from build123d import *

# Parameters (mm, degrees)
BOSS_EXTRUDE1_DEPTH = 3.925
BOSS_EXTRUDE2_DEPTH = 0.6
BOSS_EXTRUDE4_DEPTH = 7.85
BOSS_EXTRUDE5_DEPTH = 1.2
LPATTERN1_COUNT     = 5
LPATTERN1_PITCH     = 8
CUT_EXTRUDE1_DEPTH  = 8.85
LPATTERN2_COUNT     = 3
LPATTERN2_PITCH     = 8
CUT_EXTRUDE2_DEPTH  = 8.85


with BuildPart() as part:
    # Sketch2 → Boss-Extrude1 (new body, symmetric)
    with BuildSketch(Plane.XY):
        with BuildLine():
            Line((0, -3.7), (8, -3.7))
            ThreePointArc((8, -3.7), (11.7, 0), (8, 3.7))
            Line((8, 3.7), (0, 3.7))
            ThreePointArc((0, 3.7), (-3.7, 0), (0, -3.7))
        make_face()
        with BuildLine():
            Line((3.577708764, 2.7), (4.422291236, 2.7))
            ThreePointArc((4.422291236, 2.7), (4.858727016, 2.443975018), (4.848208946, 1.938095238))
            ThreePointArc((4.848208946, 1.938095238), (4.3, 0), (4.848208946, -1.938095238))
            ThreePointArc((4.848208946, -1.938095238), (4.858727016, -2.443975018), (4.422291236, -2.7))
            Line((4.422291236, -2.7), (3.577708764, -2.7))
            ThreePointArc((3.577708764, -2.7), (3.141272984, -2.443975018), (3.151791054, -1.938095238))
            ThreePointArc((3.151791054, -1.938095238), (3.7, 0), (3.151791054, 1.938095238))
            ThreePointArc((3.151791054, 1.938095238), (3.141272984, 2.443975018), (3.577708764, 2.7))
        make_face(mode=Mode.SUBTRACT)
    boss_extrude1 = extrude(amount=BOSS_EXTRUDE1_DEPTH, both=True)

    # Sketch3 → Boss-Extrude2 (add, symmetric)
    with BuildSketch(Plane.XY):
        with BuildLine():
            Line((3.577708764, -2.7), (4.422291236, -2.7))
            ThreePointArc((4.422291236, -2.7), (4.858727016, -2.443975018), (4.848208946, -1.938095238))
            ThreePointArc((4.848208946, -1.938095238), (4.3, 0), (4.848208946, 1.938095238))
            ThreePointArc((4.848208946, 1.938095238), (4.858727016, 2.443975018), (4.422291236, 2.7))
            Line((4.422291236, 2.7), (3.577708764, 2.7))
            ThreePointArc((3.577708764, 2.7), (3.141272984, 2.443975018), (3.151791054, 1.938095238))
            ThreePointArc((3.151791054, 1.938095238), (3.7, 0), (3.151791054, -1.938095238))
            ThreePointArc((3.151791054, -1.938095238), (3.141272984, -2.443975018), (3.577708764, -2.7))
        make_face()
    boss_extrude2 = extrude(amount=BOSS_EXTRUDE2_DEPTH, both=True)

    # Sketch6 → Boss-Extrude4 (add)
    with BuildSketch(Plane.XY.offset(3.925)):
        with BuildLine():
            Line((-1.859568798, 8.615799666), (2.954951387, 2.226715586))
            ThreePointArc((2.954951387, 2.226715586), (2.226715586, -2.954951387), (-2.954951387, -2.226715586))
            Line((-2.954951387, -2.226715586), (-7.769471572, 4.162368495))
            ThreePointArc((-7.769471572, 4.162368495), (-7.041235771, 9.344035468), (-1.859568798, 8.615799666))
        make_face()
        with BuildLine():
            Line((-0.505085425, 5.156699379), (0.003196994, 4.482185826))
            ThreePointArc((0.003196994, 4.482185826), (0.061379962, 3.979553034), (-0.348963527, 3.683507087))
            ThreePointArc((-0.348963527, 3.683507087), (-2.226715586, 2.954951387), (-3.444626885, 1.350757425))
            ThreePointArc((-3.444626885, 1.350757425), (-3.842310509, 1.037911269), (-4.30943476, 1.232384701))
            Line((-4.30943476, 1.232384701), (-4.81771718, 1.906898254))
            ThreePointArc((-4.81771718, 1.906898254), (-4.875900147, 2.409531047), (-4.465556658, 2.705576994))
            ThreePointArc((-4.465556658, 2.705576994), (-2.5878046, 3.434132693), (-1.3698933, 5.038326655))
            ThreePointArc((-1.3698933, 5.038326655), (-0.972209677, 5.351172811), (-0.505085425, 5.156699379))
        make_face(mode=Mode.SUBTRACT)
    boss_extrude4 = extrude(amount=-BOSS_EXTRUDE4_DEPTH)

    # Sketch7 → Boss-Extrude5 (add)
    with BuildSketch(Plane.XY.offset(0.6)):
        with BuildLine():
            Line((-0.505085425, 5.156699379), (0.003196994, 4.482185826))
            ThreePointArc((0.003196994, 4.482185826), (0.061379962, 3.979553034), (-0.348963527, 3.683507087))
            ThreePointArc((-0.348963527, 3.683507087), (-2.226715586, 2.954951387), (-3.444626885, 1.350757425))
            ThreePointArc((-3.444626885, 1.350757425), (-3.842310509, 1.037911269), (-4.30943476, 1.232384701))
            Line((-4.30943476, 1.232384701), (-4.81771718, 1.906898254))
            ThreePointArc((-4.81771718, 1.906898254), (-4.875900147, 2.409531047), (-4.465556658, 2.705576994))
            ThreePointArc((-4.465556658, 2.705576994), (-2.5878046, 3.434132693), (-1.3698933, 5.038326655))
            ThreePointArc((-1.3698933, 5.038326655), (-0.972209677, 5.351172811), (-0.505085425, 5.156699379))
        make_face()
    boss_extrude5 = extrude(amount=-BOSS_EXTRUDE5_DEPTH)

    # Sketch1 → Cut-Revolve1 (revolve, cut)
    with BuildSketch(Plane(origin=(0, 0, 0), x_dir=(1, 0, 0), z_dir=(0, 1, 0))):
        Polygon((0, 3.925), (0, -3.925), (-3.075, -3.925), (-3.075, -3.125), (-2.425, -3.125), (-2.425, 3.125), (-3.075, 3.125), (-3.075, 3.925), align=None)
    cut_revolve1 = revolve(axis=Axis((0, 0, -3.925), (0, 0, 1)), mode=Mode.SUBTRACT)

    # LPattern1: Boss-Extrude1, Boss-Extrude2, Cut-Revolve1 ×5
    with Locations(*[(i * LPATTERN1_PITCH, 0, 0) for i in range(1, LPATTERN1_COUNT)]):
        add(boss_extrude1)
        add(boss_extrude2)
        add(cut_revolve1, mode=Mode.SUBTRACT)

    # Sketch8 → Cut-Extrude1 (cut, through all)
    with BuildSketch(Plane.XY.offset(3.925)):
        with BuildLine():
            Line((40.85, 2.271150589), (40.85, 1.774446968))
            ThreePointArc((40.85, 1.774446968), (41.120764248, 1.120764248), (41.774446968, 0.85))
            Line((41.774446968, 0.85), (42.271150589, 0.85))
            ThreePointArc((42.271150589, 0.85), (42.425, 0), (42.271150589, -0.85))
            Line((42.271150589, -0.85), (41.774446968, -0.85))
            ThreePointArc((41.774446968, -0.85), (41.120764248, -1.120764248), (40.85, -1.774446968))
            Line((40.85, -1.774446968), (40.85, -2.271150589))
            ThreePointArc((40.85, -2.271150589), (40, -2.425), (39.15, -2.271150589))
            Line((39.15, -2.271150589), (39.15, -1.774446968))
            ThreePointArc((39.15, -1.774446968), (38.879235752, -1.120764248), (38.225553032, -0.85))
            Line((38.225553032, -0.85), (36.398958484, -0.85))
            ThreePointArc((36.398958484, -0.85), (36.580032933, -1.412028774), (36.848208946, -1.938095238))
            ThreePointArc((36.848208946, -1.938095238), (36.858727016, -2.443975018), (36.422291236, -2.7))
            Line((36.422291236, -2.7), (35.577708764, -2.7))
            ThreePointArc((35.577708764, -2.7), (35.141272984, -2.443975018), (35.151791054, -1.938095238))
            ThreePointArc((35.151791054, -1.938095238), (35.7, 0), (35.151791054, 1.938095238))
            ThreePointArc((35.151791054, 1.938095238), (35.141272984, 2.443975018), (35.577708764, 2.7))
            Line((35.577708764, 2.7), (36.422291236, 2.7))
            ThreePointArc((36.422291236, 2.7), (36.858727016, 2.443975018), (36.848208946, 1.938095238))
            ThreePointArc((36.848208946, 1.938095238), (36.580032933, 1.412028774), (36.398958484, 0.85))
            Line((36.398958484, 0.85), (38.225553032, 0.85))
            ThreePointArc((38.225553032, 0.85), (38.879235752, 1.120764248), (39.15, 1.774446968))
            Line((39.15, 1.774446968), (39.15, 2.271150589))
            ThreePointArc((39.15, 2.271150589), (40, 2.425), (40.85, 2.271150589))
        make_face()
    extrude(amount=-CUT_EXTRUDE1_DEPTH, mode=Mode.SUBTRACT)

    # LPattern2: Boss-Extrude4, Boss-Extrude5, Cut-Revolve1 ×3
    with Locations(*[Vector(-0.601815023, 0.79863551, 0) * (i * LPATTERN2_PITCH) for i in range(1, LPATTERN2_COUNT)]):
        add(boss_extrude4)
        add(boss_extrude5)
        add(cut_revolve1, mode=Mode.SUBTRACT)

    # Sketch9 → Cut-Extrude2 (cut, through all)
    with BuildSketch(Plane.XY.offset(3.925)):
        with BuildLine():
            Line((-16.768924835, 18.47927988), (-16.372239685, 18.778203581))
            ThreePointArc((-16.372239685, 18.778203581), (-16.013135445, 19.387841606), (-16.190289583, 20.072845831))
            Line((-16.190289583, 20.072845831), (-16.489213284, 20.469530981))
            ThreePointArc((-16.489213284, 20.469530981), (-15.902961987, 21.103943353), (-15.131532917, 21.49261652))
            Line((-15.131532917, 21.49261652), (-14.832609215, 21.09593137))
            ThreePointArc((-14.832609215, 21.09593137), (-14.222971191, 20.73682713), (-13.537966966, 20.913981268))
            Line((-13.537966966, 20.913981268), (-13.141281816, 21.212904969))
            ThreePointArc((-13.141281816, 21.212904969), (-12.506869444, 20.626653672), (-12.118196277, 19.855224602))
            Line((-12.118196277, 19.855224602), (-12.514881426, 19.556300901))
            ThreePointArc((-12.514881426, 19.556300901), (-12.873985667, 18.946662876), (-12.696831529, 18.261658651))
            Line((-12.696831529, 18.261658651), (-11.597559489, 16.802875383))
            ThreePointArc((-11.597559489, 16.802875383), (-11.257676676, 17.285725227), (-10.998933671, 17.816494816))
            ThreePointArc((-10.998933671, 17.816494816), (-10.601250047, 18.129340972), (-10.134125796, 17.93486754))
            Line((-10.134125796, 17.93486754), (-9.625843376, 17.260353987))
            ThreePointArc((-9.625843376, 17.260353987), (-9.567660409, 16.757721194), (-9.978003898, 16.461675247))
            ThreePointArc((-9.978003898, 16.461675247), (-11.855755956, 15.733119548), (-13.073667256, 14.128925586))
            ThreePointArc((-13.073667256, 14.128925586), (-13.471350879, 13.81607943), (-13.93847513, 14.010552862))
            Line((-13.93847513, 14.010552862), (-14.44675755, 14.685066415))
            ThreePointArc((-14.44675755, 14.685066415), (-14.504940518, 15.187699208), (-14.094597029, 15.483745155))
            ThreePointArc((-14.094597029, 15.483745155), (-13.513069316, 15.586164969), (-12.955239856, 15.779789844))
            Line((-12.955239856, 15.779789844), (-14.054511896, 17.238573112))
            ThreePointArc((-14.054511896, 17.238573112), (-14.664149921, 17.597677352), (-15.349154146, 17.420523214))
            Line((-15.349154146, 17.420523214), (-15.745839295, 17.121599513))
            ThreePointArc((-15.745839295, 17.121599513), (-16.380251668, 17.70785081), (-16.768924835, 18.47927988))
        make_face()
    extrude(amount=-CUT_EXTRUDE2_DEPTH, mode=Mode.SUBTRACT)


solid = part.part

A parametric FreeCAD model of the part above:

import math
import FreeCAD as App
import Part
import Sketcher
from FreeCAD import Vector
Q = App.Units.Quantity


def add_polygon(sketch, points):
    """Adds a closed chain of lines whose ends are joined by coincident constraints."""
    first, n = sketch.GeometryCount, len(points)
    for a, b in zip(points, points[1:] + points[:1]):
        sketch.addGeometry(Part.LineSegment(App.Vector(*a, 0), App.Vector(*b, 0)), False)
    for i in range(n):
        sketch.addConstraint(Sketcher.Constraint("Coincident", first + i, 2, first + (i + 1) % n, 1))

doc = App.newDocument("Part")
body = doc.addObject("PartDesign::Body", "Body")

sketch1 = body.newObject("Sketcher::SketchObject", "Sketch")
sketch1.AttachmentSupport = (doc.getObject("XY_Plane"), [""])
sketch1.MapMode = "FlatFace"
sketch1.addGeometry(Part.LineSegment(Vector(0, -3.7, 0), Vector(8, -3.7, 0)), False)
sketch1.addGeometry(Part.ArcOfCircle(Part.Circle(Vector(8, 0, 0), Vector(0, 0, 1), 3.7), math.radians(-90), math.radians(90)), False)
sketch1.addGeometry(Part.LineSegment(Vector(8, 3.7, 0), Vector(0, 3.7, 0)), False)
sketch1.addGeometry(Part.ArcOfCircle(Part.Circle(Vector(0, 0, 0), Vector(0, 0, 1), 3.7), math.radians(90), math.radians(270)), False)
sketch1.addGeometry(Part.ArcOfCircle(Part.Circle(Vector(3.577709, 2.2, 0), Vector(0, 0, 1), 0.5), math.radians(90), math.radians(211.588135)), False)
sketch1.addGeometry(Part.LineSegment(Vector(3.577709, 2.7, 0), Vector(4.422291, 2.7, 0)), False)
sketch1.addGeometry(Part.ArcOfCircle(Part.Circle(Vector(4.422291, 2.2, 0), Vector(0, 0, 1), 0.5), math.radians(-31.588135), math.radians(90)), False)
sketch1.addGeometry(Part.ArcOfCircle(Part.Circle(Vector(8, 0, 0), Vector(0, 0, 1), 3.7), math.radians(148.411864), math.radians(211.588136)), False)
sketch1.addGeometry(Part.ArcOfCircle(Part.Circle(Vector(4.422291, -2.2, 0), Vector(0, 0, 1), 0.5), math.radians(-90), math.radians(31.588135)), False)
sketch1.addGeometry(Part.LineSegment(Vector(4.422291, -2.7, 0), Vector(3.577709, -2.7, 0)), False)
sketch1.addGeometry(Part.ArcOfCircle(Part.Circle(Vector(3.577709, -2.2, 0), Vector(0, 0, 1), 0.5), math.radians(148.411865), math.radians(270)), False)
sketch1.addGeometry(Part.ArcOfCircle(Part.Circle(Vector(0, 0, 0), Vector(0, 0, 1), 3.7), math.radians(-31.588136), math.radians(31.588136)), False)
sketch1.addConstraint(Sketcher.Constraint("Tangent", 0, 2, 1, 1))
sketch1.addConstraint(Sketcher.Constraint("Tangent", 1, 2, 2, 1))
sketch1.addConstraint(Sketcher.Constraint("Tangent", 2, 2, 3, 1))
sketch1.addConstraint(Sketcher.Constraint("Tangent", 3, 2, 0, 1))
sketch1.addConstraint(Sketcher.Constraint("Tangent", 4, 1, 5, 1))
sketch1.addConstraint(Sketcher.Constraint("Tangent", 5, 2, 6, 2))
sketch1.addConstraint(Sketcher.Constraint("Tangent", 6, 1, 7, 1))
sketch1.addConstraint(Sketcher.Constraint("Tangent", 7, 2, 8, 2))
sketch1.addConstraint(Sketcher.Constraint("Tangent", 8, 1, 9, 1))
sketch1.addConstraint(Sketcher.Constraint("Tangent", 9, 2, 10, 2))
sketch1.addConstraint(Sketcher.Constraint("Tangent", 10, 1, 11, 1))
sketch1.addConstraint(Sketcher.Constraint("Tangent", 11, 2, 4, 2))
sketch1.addConstraint(Sketcher.Constraint("Horizontal", 0))
sketch1.addConstraint(Sketcher.Constraint("Horizontal", 2))
sketch1.addConstraint(Sketcher.Constraint("Horizontal", 5))
sketch1.addConstraint(Sketcher.Constraint("Horizontal", 9))
sketch1.addConstraint(Sketcher.Constraint("Coincident", 3, 3, -1, 1))
sketch1.addConstraint(Sketcher.Constraint("Coincident", 11, 3, -1, 1))
sketch1.addConstraint(Sketcher.Constraint("Coincident", 7, 3, 1, 3))
sketch1.addConstraint(Sketcher.Constraint("Equal", 4, 6))
sketch1.addConstraint(Sketcher.Constraint("Equal", 3, 7))
sketch1.addConstraint(Sketcher.Constraint("Equal", 6, 8))
sketch1.addConstraint(Sketcher.Constraint("Equal", 8, 10))
sketch1.addConstraint(Sketcher.Constraint("Equal", 7, 11))
sketch1.addConstraint(Sketcher.Constraint("Vertical", 6, 3, 8, 3))
sketch1.addConstraint(Sketcher.Constraint("Radius", 1, Q("3.7 mm")))
sketch1.addConstraint(Sketcher.Constraint("Radius", 4, Q("0.5 mm")))
sketch1.addConstraint(Sketcher.Constraint("DistanceX", 0, 1, 0, 2, Q("8 mm")))
sketch1.addConstraint(Sketcher.Constraint("DistanceY", 4, 1, 2, 2, Q("1 mm")))
pad1 = body.newObject("PartDesign::Pad", "Pad")
pad1.Profile = sketch1
pad1.Length = 7.85
pad1.Midplane = True

sketch2 = body.newObject("Sketcher::SketchObject", "Sketch001")
sketch2.AttachmentSupport = (doc.getObject("XY_Plane"), [""])
sketch2.MapMode = "FlatFace"
sketch2.addGeometry(Part.LineSegment(Vector(3.577709, -2.7, 0), Vector(4.422291, -2.7, 0)), False)
sketch2.addGeometry(Part.ArcOfCircle(Part.Circle(Vector(4.422291, -2.2, 0), Vector(0, 0, 1), 0.5), math.radians(-90), math.radians(31.588135)), False)
sketch2.addGeometry(Part.ArcOfCircle(Part.Circle(Vector(8, 0, 0), Vector(0, 0, 1), 3.7), math.radians(148.411864), math.radians(211.588136)), False)
sketch2.addGeometry(Part.ArcOfCircle(Part.Circle(Vector(4.422291, 2.2, 0), Vector(0, 0, 1), 0.5), math.radians(-31.588135), math.radians(90)), False)
sketch2.addGeometry(Part.LineSegment(Vector(4.422291, 2.7, 0), Vector(3.577709, 2.7, 0)), False)
sketch2.addGeometry(Part.ArcOfCircle(Part.Circle(Vector(3.577709, 2.2, 0), Vector(0, 0, 1), 0.5), math.radians(90), math.radians(211.588135)), False)
sketch2.addGeometry(Part.ArcOfCircle(Part.Circle(Vector(0, 0, 0), Vector(0, 0, 1), 3.7), math.radians(-31.588136), math.radians(31.588136)), False)
sketch2.addGeometry(Part.ArcOfCircle(Part.Circle(Vector(3.577709, -2.2, 0), Vector(0, 0, 1), 0.5), math.radians(148.411865), math.radians(270)), False)
sketch2.addConstraint(Sketcher.Constraint("Tangent", 0, 2, 1, 1))
sketch2.addConstraint(Sketcher.Constraint("Tangent", 1, 2, 2, 2))
sketch2.addConstraint(Sketcher.Constraint("Tangent", 2, 1, 3, 1))
sketch2.addConstraint(Sketcher.Constraint("Tangent", 3, 2, 4, 1))
sketch2.addConstraint(Sketcher.Constraint("Tangent", 4, 2, 5, 1))
sketch2.addConstraint(Sketcher.Constraint("Tangent", 5, 2, 6, 2))
sketch2.addConstraint(Sketcher.Constraint("Tangent", 6, 1, 7, 1))
sketch2.addConstraint(Sketcher.Constraint("Tangent", 7, 2, 0, 1))
sketch2.addConstraint(Sketcher.Constraint("Horizontal", 0))
sketch2.addConstraint(Sketcher.Constraint("Horizontal", 4))
sketch2.addConstraint(Sketcher.Constraint("Coincident", 6, 3, -1, 1))
sketch2.addConstraint(Sketcher.Constraint("Equal", 1, 3))
sketch2.addConstraint(Sketcher.Constraint("Equal", 3, 5))
sketch2.addConstraint(Sketcher.Constraint("Equal", 2, 6))
sketch2.addConstraint(Sketcher.Constraint("Equal", 5, 7))
sketch2.addConstraint(Sketcher.Constraint("Symmetric", 1, 3, 3, 3, -1))
sketch2.addConstraint(Sketcher.Constraint("Radius", 1, Q("0.5 mm")))
sketch2.addConstraint(Sketcher.Constraint("Radius", 2, Q("3.7 mm")))
sketch2.addConstraint(Sketcher.Constraint("DistanceX", -1, 1, 2, 3, Q("8 mm")))
sketch2.addConstraint(Sketcher.Constraint("DistanceY", 1, 3, -1, 1, Q("2.2 mm")))
pad2 = body.newObject("PartDesign::Pad", "Pad001")
pad2.Profile = sketch2
pad2.Length = 1.2
pad2.Midplane = True

sketch3 = body.newObject("Sketcher::SketchObject", "Sketch002")
sketch3.AttachmentSupport = (doc.getObject("XY_Plane"), [""])
sketch3.MapMode = "FlatFace"
sketch3.AttachmentOffset = App.Placement(Vector(0, 0, 3.925), App.Rotation())
sketch3.addGeometry(Part.LineSegment(Vector(2.954951, 2.226716, 0), Vector(-1.859569, 8.6158, 0)), False)
sketch3.addGeometry(Part.ArcOfCircle(Part.Circle(Vector(-4.81452, 6.389084, 0), Vector(0, 0, 1), 3.7), math.radians(37), math.radians(217)), False)
sketch3.addGeometry(Part.LineSegment(Vector(-7.769472, 4.162368, 0), Vector(-2.954951, -2.226716, 0)), False)
sketch3.addGeometry(Part.ArcOfCircle(Part.Circle(Vector(0, 0, 0), Vector(0, 0, 1), 3.7), math.radians(-143), math.radians(37)), False)
sketch3.addGeometry(Part.LineSegment(Vector(-0.505085, 5.156699, 0), Vector(0.003197, 4.482186, 0)), False)
sketch3.addGeometry(Part.ArcOfCircle(Part.Circle(Vector(-0.396121, 4.181278, 0), Vector(0, 0, 1), 0.5), math.radians(-84.588136), math.radians(37)), False)
sketch3.addGeometry(Part.ArcOfCircle(Part.Circle(Vector(0, 0, 0), Vector(0, 0, 1), 3.7), math.radians(95.411865), math.radians(158.588136)), False)
sketch3.addGeometry(Part.ArcOfCircle(Part.Circle(Vector(-3.910117, 1.533292, 0), Vector(0, 0, 1), 0.5), math.radians(-143), math.radians(-21.411865)), False)
sketch3.addGeometry(Part.LineSegment(Vector(-4.309435, 1.232385, 0), Vector(-4.817717, 1.906898, 0)), False)
sketch3.addGeometry(Part.ArcOfCircle(Part.Circle(Vector(-4.418399, 2.207806, 0), Vector(0, 0, 1), 0.5), math.radians(95.411865), math.radians(217)), False)
sketch3.addGeometry(Part.ArcOfCircle(Part.Circle(Vector(-4.81452, 6.389084, 0), Vector(0, 0, 1), 3.7), math.radians(-84.588136), math.radians(-21.411865)), False)
sketch3.addGeometry(Part.ArcOfCircle(Part.Circle(Vector(-0.904403, 4.855792, 0), Vector(0, 0, 1), 0.5), math.radians(37), math.radians(158.588135)), False)
sketch3.addConstraint(Sketcher.Constraint("Tangent", 0, 2, 1, 1))
sketch3.addConstraint(Sketcher.Constraint("Tangent", 1, 2, 2, 1))
sketch3.addConstraint(Sketcher.Constraint("Tangent", 2, 2, 3, 1))
sketch3.addConstraint(Sketcher.Constraint("Tangent", 3, 2, 0, 1))
sketch3.addConstraint(Sketcher.Constraint("Tangent", 4, 2, 5, 2))
sketch3.addConstraint(Sketcher.Constraint("Tangent", 5, 1, 6, 1))
sketch3.addConstraint(Sketcher.Constraint("Tangent", 6, 2, 7, 2))
sketch3.addConstraint(Sketcher.Constraint("Tangent", 7, 1, 8, 1))
sketch3.addConstraint(Sketcher.Constraint("Tangent", 8, 2, 9, 2))
sketch3.addConstraint(Sketcher.Constraint("Tangent", 9, 1, 10, 1))
sketch3.addConstraint(Sketcher.Constraint("Tangent", 10, 2, 11, 2))
sketch3.addConstraint(Sketcher.Constraint("Tangent", 11, 1, 4, 1))
sketch3.addConstraint(Sketcher.Constraint("Coincident", 3, 3, -1, 1))
sketch3.addConstraint(Sketcher.Constraint("Coincident", 6, 3, -1, 1))
sketch3.addConstraint(Sketcher.Constraint("Coincident", 10, 3, 1, 3))
sketch3.addConstraint(Sketcher.Constraint("Equal", 1, 3))
sketch3.addConstraint(Sketcher.Constraint("Equal", 3, 6))
sketch3.addConstraint(Sketcher.Constraint("Equal", 5, 7))
sketch3.addConstraint(Sketcher.Constraint("Equal", 7, 9))
sketch3.addConstraint(Sketcher.Constraint("Equal", 6, 10))
sketch3.addConstraint(Sketcher.Constraint("Equal", 9, 11))
sketch3.addConstraint(Sketcher.Constraint("Parallel", 2, 4))
sketch3.addConstraint(Sketcher.Constraint("Parallel", 4, 8))
sketch3.addConstraint(Sketcher.Constraint("Equal", 4, 8))
sketch3.addConstraint(Sketcher.Constraint("Radius", 1, Q("3.7 mm")))
sketch3.addConstraint(Sketcher.Constraint("Radius", 5, Q("0.5 mm")))
sketch3.addConstraint(Sketcher.Constraint("Angle", 0, Q("127 deg")))
sketch3.addConstraint(Sketcher.Constraint("Distance", 0, Q("8 mm")))
sketch3.addConstraint(Sketcher.Constraint("DistanceX", 9, 3, -1, 1, Q("4.418399 mm")))
pad3 = body.newObject("PartDesign::Pad", "Pad002")
pad3.Profile = sketch3
pad3.Length = 7.85
pad3.Reversed = True

sketch4 = body.newObject("Sketcher::SketchObject", "Sketch003")
sketch4.AttachmentSupport = (doc.getObject("XY_Plane"), [""])
sketch4.MapMode = "FlatFace"
sketch4.AttachmentOffset = App.Placement(Vector(0, 0, 0.6), App.Rotation())
sketch4.addGeometry(Part.LineSegment(Vector(0.003197, 4.482186, 0), Vector(-0.505085, 5.156699, 0)), False)
sketch4.addGeometry(Part.ArcOfCircle(Part.Circle(Vector(-0.904403, 4.855792, 0), Vector(0, 0, 1), 0.5), math.radians(37), math.radians(158.588135)), False)
sketch4.addGeometry(Part.ArcOfCircle(Part.Circle(Vector(-4.81452, 6.389084, 0), Vector(0, 0, 1), 3.7), math.radians(-84.588136), math.radians(-21.411865)), False)
sketch4.addGeometry(Part.ArcOfCircle(Part.Circle(Vector(-4.418399, 2.207806, 0), Vector(0, 0, 1), 0.5), math.radians(95.411865), math.radians(217)), False)
sketch4.addGeometry(Part.LineSegment(Vector(-4.817717, 1.906898, 0), Vector(-4.309435, 1.232385, 0)), False)
sketch4.addGeometry(Part.ArcOfCircle(Part.Circle(Vector(-3.910117, 1.533292, 0), Vector(0, 0, 1), 0.5), math.radians(-143), math.radians(-21.411865)), False)
sketch4.addGeometry(Part.ArcOfCircle(Part.Circle(Vector(0, 0, 0), Vector(0, 0, 1), 3.7), math.radians(95.411865), math.radians(158.588136)), False)
sketch4.addGeometry(Part.ArcOfCircle(Part.Circle(Vector(-0.396121, 4.181278, 0), Vector(0, 0, 1), 0.5), math.radians(-84.588136), math.radians(37)), False)
sketch4.addConstraint(Sketcher.Constraint("Tangent", 0, 2, 1, 1))
sketch4.addConstraint(Sketcher.Constraint("Tangent", 1, 2, 2, 2))
sketch4.addConstraint(Sketcher.Constraint("Tangent", 2, 1, 3, 1))
sketch4.addConstraint(Sketcher.Constraint("Tangent", 3, 2, 4, 1))
sketch4.addConstraint(Sketcher.Constraint("Tangent", 4, 2, 5, 1))
sketch4.addConstraint(Sketcher.Constraint("Tangent", 5, 2, 6, 2))
sketch4.addConstraint(Sketcher.Constraint("Tangent", 6, 1, 7, 1))
sketch4.addConstraint(Sketcher.Constraint("Tangent", 7, 2, 0, 1))
sketch4.addConstraint(Sketcher.Constraint("Coincident", 6, 3, -1, 1))
sketch4.addConstraint(Sketcher.Constraint("Equal", 1, 3))
sketch4.addConstraint(Sketcher.Constraint("Equal", 3, 5))
sketch4.addConstraint(Sketcher.Constraint("Equal", 2, 6))
sketch4.addConstraint(Sketcher.Constraint("Equal", 5, 7))
sketch4.addConstraint(Sketcher.Constraint("Parallel", 0, 4))
sketch4.addConstraint(Sketcher.Constraint("Equal", 0, 4))
sketch4.addConstraint(Sketcher.Constraint("Radius", 1, Q("0.5 mm")))
sketch4.addConstraint(Sketcher.Constraint("Radius", 2, Q("3.7 mm")))
sketch4.addConstraint(Sketcher.Constraint("Angle", 0, Q("127 deg")))
sketch4.addConstraint(Sketcher.Constraint("DistanceX", 3, 3, -1, 1, Q("4.418399 mm")))
sketch4.addConstraint(Sketcher.Constraint("DistanceY", -1, 1, 0, 2, Q("5.156699 mm")))
sketch4.addConstraint(Sketcher.Constraint("DistanceY", -1, 1, 3, 2, Q("1.906898 mm")))
pad4 = body.newObject("PartDesign::Pad", "Pad003")
pad4.Profile = sketch4
pad4.Length = 1.2
pad4.Reversed = True

sketch5 = body.newObject("Sketcher::SketchObject", "Sketch004")
sketch5.AttachmentSupport = (doc.getObject("XZ_Plane"), [""])
sketch5.MapMode = "FlatFace"
add_polygon(sketch5, [(0, 3.925), (0, -3.925), (-3.075, -3.925), (-3.075, -3.125), (-2.425, -3.125), (-2.425, 3.125), (-3.075, 3.125), (-3.075, 3.925)])
sketch5.addConstraint(Sketcher.Constraint("Vertical", 0))
sketch5.addConstraint(Sketcher.Constraint("Horizontal", 1))
sketch5.addConstraint(Sketcher.Constraint("Vertical", 2))
sketch5.addConstraint(Sketcher.Constraint("Horizontal", 3))
sketch5.addConstraint(Sketcher.Constraint("Vertical", 4))
sketch5.addConstraint(Sketcher.Constraint("Horizontal", 5))
sketch5.addConstraint(Sketcher.Constraint("Vertical", 6))
sketch5.addConstraint(Sketcher.Constraint("Horizontal", 7))
sketch5.addConstraint(Sketcher.Constraint("Symmetric", 0, 2, 7, 2, -1, 1))
sketch5.addConstraint(Sketcher.Constraint("Symmetric", 2, 2, 5, 2, -1))
sketch5.addConstraint(Sketcher.Constraint("DistanceY", 2, 1, 2, 2, Q("0.8 mm")))
sketch5.addConstraint(Sketcher.Constraint("DistanceX", 3, 1, 3, 2, Q("0.65 mm")))
sketch5.addConstraint(Sketcher.Constraint("DistanceY", 0, 2, 0, 1, Q("7.85 mm")))
sketch5.addConstraint(Sketcher.Constraint("DistanceX", 1, 2, 1, 1, Q("3.075 mm")))
groove = body.newObject("PartDesign::Groove", "Groove")
groove.Profile = sketch5
groove.ReferenceAxis = (sketch5, ["V_Axis"])
groove.Angle = 360
doc.recompute()

linearpattern = body.newObject("PartDesign::LinearPattern", "LinearPattern")
linearpattern.Originals = [pad1, pad2, groove]
linearpattern.Direction = (doc.getObject("X_Axis"), [""])
linearpattern.Mode = "offset"
linearpattern.Offset = 8
linearpattern.Occurrences = 5
body.Tip = linearpattern

sketch6 = body.newObject("Sketcher::SketchObject", "Sketch005")
sketch6.AttachmentSupport = (doc.getObject("XY_Plane"), [""])
sketch6.MapMode = "FlatFace"
sketch6.AttachmentOffset = App.Placement(Vector(0, 0, 3.925), App.Rotation())
sketch6.addGeometry(Part.LineSegment(Vector(40.85, 1.774447, 0), Vector(40.85, 2.271151, 0)), False)
sketch6.addGeometry(Part.ArcOfCircle(Part.Circle(Vector(40, 0, 0), Vector(0, 0, 1), 2.425), math.radians(69.481154), math.radians(110.518846)), False)
sketch6.addGeometry(Part.LineSegment(Vector(39.15, 2.271151, 0), Vector(39.15, 1.774447, 0)), False)
sketch6.addGeometry(Part.ArcOfCircle(Part.Circle(Vector(38.225553, 1.774447, 0), Vector(0, 0, 1), 0.924447), math.radians(-90), math.radians(0)), False)
sketch6.addGeometry(Part.LineSegment(Vector(38.225553, 0.85, 0), Vector(36.398958, 0.85, 0)), False)
sketch6.addGeometry(Part.ArcOfCircle(Part.Circle(Vector(40, 0, 0), Vector(0, 0, 1), 3.7), math.radians(148.411865), math.radians(166.71884)), False)
sketch6.addGeometry(Part.ArcOfCircle(Part.Circle(Vector(36.422291, 2.2, 0), Vector(0, 0, 1), 0.5), math.radians(-31.588135), math.radians(90)), False)
sketch6.addGeometry(Part.LineSegment(Vector(36.422291, 2.7, 0), Vector(35.577709, 2.7, 0)), False)
sketch6.addGeometry(Part.ArcOfCircle(Part.Circle(Vector(35.577709, 2.2, 0), Vector(0, 0, 1), 0.5), math.radians(90), math.radians(211.588135)), False)
sketch6.addGeometry(Part.ArcOfCircle(Part.Circle(Vector(32, 0, 0), Vector(0, 0, 1), 3.7), math.radians(-31.588136), math.radians(31.588136)), False)
sketch6.addGeometry(Part.ArcOfCircle(Part.Circle(Vector(35.577709, -2.2, 0), Vector(0, 0, 1), 0.5), math.radians(148.411865), math.radians(270)), False)
sketch6.addGeometry(Part.LineSegment(Vector(35.577709, -2.7, 0), Vector(36.422291, -2.7, 0)), False)
sketch6.addGeometry(Part.ArcOfCircle(Part.Circle(Vector(36.422291, -2.2, 0), Vector(0, 0, 1), 0.5), math.radians(-90), math.radians(31.588135)), False)
sketch6.addGeometry(Part.ArcOfCircle(Part.Circle(Vector(40, 0, 0), Vector(0, 0, 1), 3.7), math.radians(-166.71884), math.radians(-148.411865)), False)
sketch6.addGeometry(Part.LineSegment(Vector(36.398958, -0.85, 0), Vector(38.225553, -0.85, 0)), False)
sketch6.addGeometry(Part.ArcOfCircle(Part.Circle(Vector(38.225553, -1.774447, 0), Vector(0, 0, 1), 0.924447), math.radians(0), math.radians(90)), False)
sketch6.addGeometry(Part.LineSegment(Vector(39.15, -1.774447, 0), Vector(39.15, -2.271151, 0)), False)
sketch6.addGeometry(Part.ArcOfCircle(Part.Circle(Vector(40, 0, 0), Vector(0, 0, 1), 2.425), math.radians(-110.518846), math.radians(-69.481154)), False)
sketch6.addGeometry(Part.LineSegment(Vector(40.85, -2.271151, 0), Vector(40.85, -1.774447, 0)), False)
sketch6.addGeometry(Part.ArcOfCircle(Part.Circle(Vector(41.774447, -1.774447, 0), Vector(0, 0, 1), 0.924447), math.radians(90), math.radians(180)), False)
sketch6.addGeometry(Part.LineSegment(Vector(41.774447, -0.85, 0), Vector(42.271151, -0.85, 0)), False)
sketch6.addGeometry(Part.ArcOfCircle(Part.Circle(Vector(40, 0, 0), Vector(0, 0, 1), 2.425), math.radians(-20.518846), math.radians(20.518846)), False)
sketch6.addGeometry(Part.LineSegment(Vector(42.271151, 0.85, 0), Vector(41.774447, 0.85, 0)), False)
sketch6.addGeometry(Part.ArcOfCircle(Part.Circle(Vector(41.774447, 1.774447, 0), Vector(0, 0, 1), 0.924447), math.radians(180), math.radians(270)), False)
sketch6.addConstraint(Sketcher.Constraint("Coincident", 0, 2, 1, 1))
sketch6.addConstraint(Sketcher.Constraint("Coincident", 1, 2, 2, 1))
sketch6.addConstraint(Sketcher.Constraint("Tangent", 2, 2, 3, 2))
sketch6.addConstraint(Sketcher.Constraint("Tangent", 3, 1, 4, 1))
sketch6.addConstraint(Sketcher.Constraint("Coincident", 4, 2, 5, 2))
sketch6.addConstraint(Sketcher.Constraint("Tangent", 5, 1, 6, 1))
sketch6.addConstraint(Sketcher.Constraint("Tangent", 6, 2, 7, 1))
sketch6.addConstraint(Sketcher.Constraint("Tangent", 7, 2, 8, 1))
sketch6.addConstraint(Sketcher.Constraint("Tangent", 8, 2, 9, 2))
sketch6.addConstraint(Sketcher.Constraint("Tangent", 9, 1, 10, 1))
sketch6.addConstraint(Sketcher.Constraint("Tangent", 10, 2, 11, 1))
sketch6.addConstraint(Sketcher.Constraint("Tangent", 11, 2, 12, 1))
sketch6.addConstraint(Sketcher.Constraint("Tangent", 12, 2, 13, 2))
sketch6.addConstraint(Sketcher.Constraint("Coincident", 13, 1, 14, 1))
sketch6.addConstraint(Sketcher.Constraint("Tangent", 14, 2, 15, 2))
sketch6.addConstraint(Sketcher.Constraint("Tangent", 15, 1, 16, 1))
sketch6.addConstraint(Sketcher.Constraint("Coincident", 16, 2, 17, 1))
sketch6.addConstraint(Sketcher.Constraint("Coincident", 17, 2, 18, 1))
sketch6.addConstraint(Sketcher.Constraint("Tangent", 18, 2, 19, 2))
sketch6.addConstraint(Sketcher.Constraint("Tangent", 19, 1, 20, 1))
sketch6.addConstraint(Sketcher.Constraint("Coincident", 20, 2, 21, 1))
sketch6.addConstraint(Sketcher.Constraint("Coincident", 21, 2, 22, 1))
sketch6.addConstraint(Sketcher.Constraint("Tangent", 22, 2, 23, 2))
sketch6.addConstraint(Sketcher.Constraint("Tangent", 23, 1, 0, 1))
sketch6.addConstraint(Sketcher.Constraint("Vertical", 0))
sketch6.addConstraint(Sketcher.Constraint("Vertical", 2))
sketch6.addConstraint(Sketcher.Constraint("Horizontal", 4))
sketch6.addConstraint(Sketcher.Constraint("Horizontal", 7))
sketch6.addConstraint(Sketcher.Constraint("Horizontal", 11))
sketch6.addConstraint(Sketcher.Constraint("Horizontal", 14))
sketch6.addConstraint(Sketcher.Constraint("Vertical", 16))
sketch6.addConstraint(Sketcher.Constraint("Vertical", 18))
sketch6.addConstraint(Sketcher.Constraint("Horizontal", 20))
sketch6.addConstraint(Sketcher.Constraint("Horizontal", 22))
sketch6.addConstraint(Sketcher.Constraint("Coincident", 5, 3, 1, 3))
sketch6.addConstraint(Sketcher.Constraint("Coincident", 13, 3, 1, 3))
sketch6.addConstraint(Sketcher.Constraint("Coincident", 17, 3, 1, 3))
sketch6.addConstraint(Sketcher.Constraint("Coincident", 21, 3, 1, 3))
sketch6.addConstraint(Sketcher.Constraint("Equal", 6, 8))
sketch6.addConstraint(Sketcher.Constraint("Equal", 5, 9))
sketch6.addConstraint(Sketcher.Constraint("Equal", 8, 10))
sketch6.addConstraint(Sketcher.Constraint("Equal", 10, 12))
sketch6.addConstraint(Sketcher.Constraint("Equal", 9, 13))
sketch6.addConstraint(Sketcher.Constraint("Equal", 3, 15))
sketch6.addConstraint(Sketcher.Constraint("Equal", 1, 17))
sketch6.addConstraint(Sketcher.Constraint("Equal", 15, 19))
sketch6.addConstraint(Sketcher.Constraint("Equal", 17, 21))
sketch6.addConstraint(Sketcher.Constraint("Equal", 19, 23))
sketch6.addConstraint(Sketcher.Constraint("Symmetric", 8, 3, 10, 3, -1))
sketch6.addConstraint(Sketcher.Constraint("Symmetric", 3, 3, 15, 3, -1))
sketch6.addConstraint(Sketcher.Constraint("Symmetric", 19, 3, 23, 3, -1))
sketch6.addConstraint(Sketcher.Constraint("PointOnObject", 1, 3, -1))
sketch6.addConstraint(Sketcher.Constraint("Horizontal", 15, 3, 19, 3))
sketch6.addConstraint(Sketcher.Constraint("Horizontal", 0, 2, 1, 2))
sketch6.addConstraint(Sketcher.Constraint("Equal", 22, 0))
sketch6.addConstraint(Sketcher.Constraint("Radius", 5, Q("3.7 mm")))
sketch6.addConstraint(Sketcher.Constraint("Radius", 6, Q("0.5 mm")))
sketch6.addConstraint(Sketcher.Constraint("DistanceX", -1, 1, 1, 3, Q("40 mm")))
sketch6.addConstraint(Sketcher.Constraint("DistanceX", -1, 1, 9, 3, Q("32 mm")))
sketch6.addConstraint(Sketcher.Constraint("Radius", 1, Q("2.425 mm")))
sketch6.addConstraint(Sketcher.Constraint("DistanceY", -1, 1, 6, 3, Q("2.2 mm")))
sketch6.addConstraint(Sketcher.Constraint("DistanceX", 1, 2, 0, 2, Q("1.7 mm")))
sketch6.addConstraint(Sketcher.Constraint("Radius", 3, Q("0.924447 mm")))
pocket1 = body.newObject("PartDesign::Pocket", "Pocket")
pocket1.Profile = sketch6
pocket1.Type = "ThroughAll"
doc.recompute()

datumline = body.newObject("PartDesign::Line", "DatumLine")
datumline.Placement = App.Placement(Vector(0, 0, 0), App.Rotation(Vector(0, 0, 1), Vector(-0.601815023, 0.79863551, 0)))
linearpattern2 = body.newObject("PartDesign::LinearPattern", "LinearPattern001")
linearpattern2.Originals = [pad3, pad4, groove]
linearpattern2.Direction = (datumline, [""])
linearpattern2.Mode = "offset"
linearpattern2.Offset = 8
linearpattern2.Occurrences = 3
body.Tip = linearpattern2

sketch7 = body.newObject("Sketcher::SketchObject", "Sketch006")
sketch7.AttachmentSupport = (doc.getObject("XY_Plane"), [""])
sketch7.MapMode = "FlatFace"
sketch7.AttachmentOffset = App.Placement(Vector(0, 0, 3.925), App.Rotation())
sketch7.addGeometry(Part.LineSegment(Vector(-16.37224, 18.778204, 0), Vector(-16.768925, 18.47928, 0)), False)
sketch7.addGeometry(Part.ArcOfCircle(Part.Circle(Vector(-14.443561, 19.167252, 0), Vector(0, 0, 1), 2.425), math.radians(-163.518846), math.radians(-122.481154)), False)
sketch7.addGeometry(Part.LineSegment(Vector(-15.745839, 17.1216, 0), Vector(-15.349154, 17.420523, 0)), False)
sketch7.addGeometry(Part.ArcOfCircle(Part.Circle(Vector(-14.792808, 16.682227, 0), Vector(0, 0, 1), 0.924447), math.radians(37), math.radians(127)), False)
sketch7.addGeometry(Part.LineSegment(Vector(-14.054512, 17.238573, 0), Vector(-12.95524, 15.77979, 0)), False)
sketch7.addGeometry(Part.ArcOfCircle(Part.Circle(Vector(-14.443561, 19.167252, 0), Vector(0, 0, 1), 3.7), math.radians(-84.588136), math.radians(-66.28116)), False)
sketch7.addGeometry(Part.ArcOfCircle(Part.Circle(Vector(-14.04744, 14.985974, 0), Vector(0, 0, 1), 0.5), math.radians(95.411864), math.radians(217)), False)
sketch7.addGeometry(Part.LineSegment(Vector(-14.446758, 14.685066, 0), Vector(-13.938475, 14.010553, 0)), False)
sketch7.addGeometry(Part.ArcOfCircle(Part.Circle(Vector(-13.539157, 14.31146, 0), Vector(0, 0, 1), 0.5), math.radians(-143), math.radians(-21.411864)), False)
sketch7.addGeometry(Part.ArcOfCircle(Part.Circle(Vector(-9.62904, 12.778168, 0), Vector(0, 0, 1), 3.7), math.radians(95.411864), math.radians(158.588135)), False)
sketch7.addGeometry(Part.ArcOfCircle(Part.Circle(Vector(-10.025161, 16.959446, 0), Vector(0, 0, 1), 0.5), math.radians(-84.588135), math.radians(37)), False)
sketch7.addGeometry(Part.LineSegment(Vector(-9.625843, 17.260354, 0), Vector(-10.134126, 17.934868, 0)), False)
sketch7.addGeometry(Part.ArcOfCircle(Part.Circle(Vector(-10.533444, 17.63396, 0), Vector(0, 0, 1), 0.5), math.radians(37), math.radians(158.588135)), False)
sketch7.addGeometry(Part.ArcOfCircle(Part.Circle(Vector(-14.443561, 19.167252, 0), Vector(0, 0, 1), 3.7), math.radians(-39.71884), math.radians(-21.411864)), False)
sketch7.addGeometry(Part.LineSegment(Vector(-11.597559, 16.802875, 0), Vector(-12.696832, 18.261659, 0)), False)
sketch7.addGeometry(Part.ArcOfCircle(Part.Circle(Vector(-11.958535, 18.818005, 0), Vector(0, 0, 1), 0.924447), math.radians(127), math.radians(217)), False)
sketch7.addGeometry(Part.LineSegment(Vector(-12.514881, 19.556301, 0), Vector(-12.118196, 19.855225, 0)), False)
sketch7.addGeometry(Part.ArcOfCircle(Part.Circle(Vector(-14.443561, 19.167252, 0), Vector(0, 0, 1), 2.425), math.radians(16.481154), math.radians(57.518846)), False)
sketch7.addGeometry(Part.LineSegment(Vector(-13.141282, 21.212905, 0), Vector(-13.537967, 20.913981, 0)), False)
sketch7.addGeometry(Part.ArcOfCircle(Part.Circle(Vector(-14.094313, 21.652277, 0), Vector(0, 0, 1), 0.924447), math.radians(-143), math.radians(-53)), False)
sketch7.addGeometry(Part.LineSegment(Vector(-14.832609, 21.095931, 0), Vector(-15.131533, 21.492617, 0)), False)
sketch7.addGeometry(Part.ArcOfCircle(Part.Circle(Vector(-14.443561, 19.167252, 0), Vector(0, 0, 1), 2.425), math.radians(106.481154), math.radians(147.518846)), False)
sketch7.addGeometry(Part.LineSegment(Vector(-16.489213, 20.469531, 0), Vector(-16.19029, 20.072846, 0)), False)
sketch7.addGeometry(Part.ArcOfCircle(Part.Circle(Vector(-16.928586, 19.5165, 0), Vector(0, 0, 1), 0.924447), math.radians(-53), math.radians(37)), False)
sketch7.addConstraint(Sketcher.Constraint("Coincident", 0, 2, 1, 1))
sketch7.addConstraint(Sketcher.Constraint("Coincident", 1, 2, 2, 1))
sketch7.addConstraint(Sketcher.Constraint("Tangent", 2, 2, 3, 2))
sketch7.addConstraint(Sketcher.Constraint("Tangent", 3, 1, 4, 1))
sketch7.addConstraint(Sketcher.Constraint("Coincident", 4, 2, 5, 2))
sketch7.addConstraint(Sketcher.Constraint("Tangent", 5, 1, 6, 1))
sketch7.addConstraint(Sketcher.Constraint("Tangent", 6, 2, 7, 1))
sketch7.addConstraint(Sketcher.Constraint("Tangent", 7, 2, 8, 1))
sketch7.addConstraint(Sketcher.Constraint("Tangent", 8, 2, 9, 2))
sketch7.addConstraint(Sketcher.Constraint("Tangent", 9, 1, 10, 1))
sketch7.addConstraint(Sketcher.Constraint("Tangent", 10, 2, 11, 1))
sketch7.addConstraint(Sketcher.Constraint("Tangent", 11, 2, 12, 1))
sketch7.addConstraint(Sketcher.Constraint("Tangent", 12, 2, 13, 2))
sketch7.addConstraint(Sketcher.Constraint("Coincident", 13, 1, 14, 1))
sketch7.addConstraint(Sketcher.Constraint("Tangent", 14, 2, 15, 2))
sketch7.addConstraint(Sketcher.Constraint("Tangent", 15, 1, 16, 1))
sketch7.addConstraint(Sketcher.Constraint("Coincident", 16, 2, 17, 1))
sketch7.addConstraint(Sketcher.Constraint("Coincident", 17, 2, 18, 1))
sketch7.addConstraint(Sketcher.Constraint("Tangent", 18, 2, 19, 2))
sketch7.addConstraint(Sketcher.Constraint("Tangent", 19, 1, 20, 1))
sketch7.addConstraint(Sketcher.Constraint("Coincident", 20, 2, 21, 1))
sketch7.addConstraint(Sketcher.Constraint("Coincident", 21, 2, 22, 1))
sketch7.addConstraint(Sketcher.Constraint("Tangent", 22, 2, 23, 2))
sketch7.addConstraint(Sketcher.Constraint("Tangent", 23, 1, 0, 1))
sketch7.addConstraint(Sketcher.Constraint("Coincident", 5, 3, 1, 3))
sketch7.addConstraint(Sketcher.Constraint("Coincident", 13, 3, 1, 3))
sketch7.addConstraint(Sketcher.Constraint("Coincident", 17, 3, 1, 3))
sketch7.addConstraint(Sketcher.Constraint("Coincident", 21, 3, 1, 3))
sketch7.addConstraint(Sketcher.Constraint("Equal", 6, 8))
sketch7.addConstraint(Sketcher.Constraint("Equal", 5, 9))
sketch7.addConstraint(Sketcher.Constraint("Equal", 8, 10))
sketch7.addConstraint(Sketcher.Constraint("Equal", 10, 12))
sketch7.addConstraint(Sketcher.Constraint("Equal", 9, 13))
sketch7.addConstraint(Sketcher.Constraint("Equal", 3, 15))
sketch7.addConstraint(Sketcher.Constraint("Equal", 1, 17))
sketch7.addConstraint(Sketcher.Constraint("Equal", 15, 19))
sketch7.addConstraint(Sketcher.Constraint("Equal", 17, 21))
sketch7.addConstraint(Sketcher.Constraint("Equal", 19, 23))
sketch7.addConstraint(Sketcher.Constraint("Parallel", 0, 2))
sketch7.addConstraint(Sketcher.Constraint("Perpendicular", 2, 4))
sketch7.addConstraint(Sketcher.Constraint("Parallel", 4, 7))
sketch7.addConstraint(Sketcher.Constraint("Parallel", 7, 11))
sketch7.addConstraint(Sketcher.Constraint("Parallel", 11, 14))
sketch7.addConstraint(Sketcher.Constraint("Perpendicular", 14, 16))
sketch7.addConstraint(Sketcher.Constraint("Parallel", 16, 18))
sketch7.addConstraint(Sketcher.Constraint("Perpendicular", 18, 20))
sketch7.addConstraint(Sketcher.Constraint("Parallel", 20, 22))
sketch7.addConstraint(Sketcher.Constraint("Equal", 0, 2))
sketch7.addConstraint(Sketcher.Constraint("Equal", 7, 11))
sketch7.addConstraint(Sketcher.Constraint("Equal", 4, 14))
sketch7.addConstraint(Sketcher.Constraint("Equal", 2, 16))
sketch7.addConstraint(Sketcher.Constraint("Equal", 16, 18))
sketch7.addConstraint(Sketcher.Constraint("Equal", 18, 20))
sketch7.addConstraint(Sketcher.Constraint("Equal", 20, 22))
sketch7.addConstraint(Sketcher.Constraint("Radius", 5, Q("3.7 mm")))
sketch7.addConstraint(Sketcher.Constraint("Radius", 6, Q("0.5 mm")))
sketch7.addConstraint(Sketcher.Constraint("Angle", 0, Q("-143 deg")))
sketch7.addConstraint(Sketcher.Constraint("Radius", 1, Q("2.425 mm")))
sketch7.addConstraint(Sketcher.Constraint("Radius", 3, Q("0.924447 mm")))
sketch7.addConstraint(Sketcher.Constraint("DistanceY", -1, 1, 23, 3, Q("19.5165 mm")))
sketch7.addConstraint(Sketcher.Constraint("DistanceY", -1, 1, 1, 2, Q("17.1216 mm")))
sketch7.addConstraint(Sketcher.Constraint("DistanceY", -1, 1, 15, 1, Q("19.556301 mm")))
sketch7.addConstraint(Sketcher.Constraint("DistanceX", 6, 3, 9, 3, Q("4.418399 mm")))
sketch7.addConstraint(Sketcher.Constraint("DistanceX", 6, 3, 4, 2, Q("1.0922 mm")))
sketch7.addConstraint(Sketcher.Constraint("DistanceX", 6, 2, 8, 3, Q("0.9076 mm")))
sketch7.addConstraint(Sketcher.Constraint("DistanceX", 1, 3, -1, 1, Q("14.443561 mm")))
pocket2 = body.newObject("PartDesign::Pocket", "Pocket001")
pocket2.Profile = sketch7
pocket2.Type = "ThroughAll"

doc.recompute()
